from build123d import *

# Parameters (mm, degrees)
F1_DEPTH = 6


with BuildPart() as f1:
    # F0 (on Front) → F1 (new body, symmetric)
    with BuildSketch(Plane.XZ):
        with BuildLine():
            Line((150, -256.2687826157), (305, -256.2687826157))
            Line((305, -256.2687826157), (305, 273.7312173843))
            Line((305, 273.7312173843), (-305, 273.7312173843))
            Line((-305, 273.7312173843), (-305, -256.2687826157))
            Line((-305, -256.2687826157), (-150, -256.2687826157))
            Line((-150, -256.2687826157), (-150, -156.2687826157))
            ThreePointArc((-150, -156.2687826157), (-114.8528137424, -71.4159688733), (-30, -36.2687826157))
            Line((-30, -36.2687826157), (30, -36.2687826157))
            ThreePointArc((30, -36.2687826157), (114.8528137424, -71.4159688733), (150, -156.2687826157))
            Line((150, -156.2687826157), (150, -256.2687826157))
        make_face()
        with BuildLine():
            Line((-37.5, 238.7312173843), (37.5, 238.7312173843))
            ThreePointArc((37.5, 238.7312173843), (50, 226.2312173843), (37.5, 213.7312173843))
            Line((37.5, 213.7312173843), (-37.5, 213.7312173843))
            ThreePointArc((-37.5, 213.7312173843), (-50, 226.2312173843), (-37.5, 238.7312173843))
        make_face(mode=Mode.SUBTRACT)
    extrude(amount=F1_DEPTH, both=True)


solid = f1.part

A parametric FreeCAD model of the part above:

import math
import FreeCAD as App
import Part
import Sketcher
from FreeCAD import Vector

doc = App.newDocument("Part")
body = doc.addObject("PartDesign::Body", "Body")

sketch1 = body.newObject("Sketcher::SketchObject", "Sketch")
sketch1.AttachmentSupport = (doc.getObject("XZ_Plane"), [""])
sketch1.MapMode = "FlatFace"
sketch1.addGeometry([
    Part.LineSegment(Vector(150, -256, 0), Vector(305, -256, 0)),
    Part.LineSegment(Vector(305, -256, 0), Vector(305, 274, 0)),
    Part.LineSegment(Vector(305, 274, 0), Vector(-305, 274, 0)),
    Part.LineSegment(Vector(-305, 274, 0), Vector(-305, -256, 0)),
    Part.LineSegment(Vector(-305, -256, 0), Vector(-150, -256, 0)),
    Part.LineSegment(Vector(-150, -256, 0), Vector(-150, -156, 0)),
    Part.ArcOfCircle(Part.Circle(Vector(-30, -156, 0), Vector(0, 0, 1), 120), math.radians(90), math.radians(180)),
    Part.LineSegment(Vector(-30, -36, 0), Vector(30, -36, 0)),
    Part.ArcOfCircle(Part.Circle(Vector(30, -156, 0), Vector(0, 0, 1), 120), math.radians(0), math.radians(90)),
    Part.LineSegment(Vector(150, -156, 0), Vector(150, -256, 0)),
    Part.ArcOfCircle(Part.Circle(Vector(-38, 226, 0), Vector(0, 0, 1), 12), math.radians(90), math.radians(270)),
    Part.LineSegment(Vector(-38, 239, 0), Vector(38, 239, 0)),
    Part.ArcOfCircle(Part.Circle(Vector(38, 226, 0), Vector(0, 0, 1), 12), math.radians(-90), math.radians(90)),
    Part.LineSegment(Vector(38, 214, 0), Vector(-38, 214, 0)),
], False)
sketch1.addConstraint([
    Sketcher.Constraint("Coincident", 0, 2, 1, 1),
    Sketcher.Constraint("Coincident", 1, 2, 2, 1),
    Sketcher.Constraint("Coincident", 2, 2, 3, 1),
    Sketcher.Constraint("Coincident", 3, 2, 4, 1),
    Sketcher.Constraint("Coincident", 4, 2, 5, 1),
    Sketcher.Constraint("Tangent", 5, 2, 6, 2),
    Sketcher.Constraint("Tangent", 6, 1, 7, 1),
    Sketcher.Constraint("Tangent", 7, 2, 8, 2),
    Sketcher.Constraint("Tangent", 8, 1, 9, 1),
    Sketcher.Constraint("Coincident", 9, 2, 0, 1),
    Sketcher.Constraint("Tangent", 10, 1, 11, 1),
    Sketcher.Constraint("Tangent", 11, 2, 12, 2),
    Sketcher.Constraint("Tangent", 12, 1, 13, 1),
    Sketcher.Constraint("Tangent", 13, 2, 10, 2),
    Sketcher.Constraint("Horizontal", 0),
    Sketcher.Constraint("Vertical", 1),
    Sketcher.Constraint("Horizontal", 2),
    Sketcher.Constraint("Vertical", 3),
    Sketcher.Constraint("Horizontal", 4),
    Sketcher.Constraint("Vertical", 5),
    Sketcher.Constraint("Horizontal", 7),
    Sketcher.Constraint("Vertical", 9),
    Sketcher.Constraint("Horizontal", 11),
    Sketcher.Constraint("Horizontal", 13),
    Sketcher.Constraint("Equal", 6, 8),
    Sketcher.Constraint("Symmetric", 0, 2, 3, 2, -2),
    Sketcher.Constraint("Equal", 0, 4),
    Sketcher.Constraint("Radius", 6, 120.0),
    Sketcher.Constraint("Radius", 10, 12.5),
    Sketcher.Constraint("DistanceX", 0, 1, 0, 2, 155.0),
    Sketcher.Constraint("DistanceX", 2, 2, 2, 1, 610.0),
    Sketcher.Constraint("DistanceX", 11, 1, 11, 2, 75.0),
    Sketcher.Constraint("DistanceY", 1, 1, 1, 2, 530.0),
    Sketcher.Constraint("DistanceY", 5, 1, 5, 2, 100.0),
    Sketcher.Constraint("DistanceY", 10, 1, 2, 2, 35.0),
    Sketcher.Constraint("DistanceX", 10, 3, -1, 1, 37.5),
    Sketcher.Constraint("DistanceY", 6, 3, -1, 1, 156.268783),
])
pad1 = body.newObject("PartDesign::Pad", "Pad")
pad1.Profile = sketch1
pad1.Length = 12
pad1.Midplane = True

doc.recompute()
